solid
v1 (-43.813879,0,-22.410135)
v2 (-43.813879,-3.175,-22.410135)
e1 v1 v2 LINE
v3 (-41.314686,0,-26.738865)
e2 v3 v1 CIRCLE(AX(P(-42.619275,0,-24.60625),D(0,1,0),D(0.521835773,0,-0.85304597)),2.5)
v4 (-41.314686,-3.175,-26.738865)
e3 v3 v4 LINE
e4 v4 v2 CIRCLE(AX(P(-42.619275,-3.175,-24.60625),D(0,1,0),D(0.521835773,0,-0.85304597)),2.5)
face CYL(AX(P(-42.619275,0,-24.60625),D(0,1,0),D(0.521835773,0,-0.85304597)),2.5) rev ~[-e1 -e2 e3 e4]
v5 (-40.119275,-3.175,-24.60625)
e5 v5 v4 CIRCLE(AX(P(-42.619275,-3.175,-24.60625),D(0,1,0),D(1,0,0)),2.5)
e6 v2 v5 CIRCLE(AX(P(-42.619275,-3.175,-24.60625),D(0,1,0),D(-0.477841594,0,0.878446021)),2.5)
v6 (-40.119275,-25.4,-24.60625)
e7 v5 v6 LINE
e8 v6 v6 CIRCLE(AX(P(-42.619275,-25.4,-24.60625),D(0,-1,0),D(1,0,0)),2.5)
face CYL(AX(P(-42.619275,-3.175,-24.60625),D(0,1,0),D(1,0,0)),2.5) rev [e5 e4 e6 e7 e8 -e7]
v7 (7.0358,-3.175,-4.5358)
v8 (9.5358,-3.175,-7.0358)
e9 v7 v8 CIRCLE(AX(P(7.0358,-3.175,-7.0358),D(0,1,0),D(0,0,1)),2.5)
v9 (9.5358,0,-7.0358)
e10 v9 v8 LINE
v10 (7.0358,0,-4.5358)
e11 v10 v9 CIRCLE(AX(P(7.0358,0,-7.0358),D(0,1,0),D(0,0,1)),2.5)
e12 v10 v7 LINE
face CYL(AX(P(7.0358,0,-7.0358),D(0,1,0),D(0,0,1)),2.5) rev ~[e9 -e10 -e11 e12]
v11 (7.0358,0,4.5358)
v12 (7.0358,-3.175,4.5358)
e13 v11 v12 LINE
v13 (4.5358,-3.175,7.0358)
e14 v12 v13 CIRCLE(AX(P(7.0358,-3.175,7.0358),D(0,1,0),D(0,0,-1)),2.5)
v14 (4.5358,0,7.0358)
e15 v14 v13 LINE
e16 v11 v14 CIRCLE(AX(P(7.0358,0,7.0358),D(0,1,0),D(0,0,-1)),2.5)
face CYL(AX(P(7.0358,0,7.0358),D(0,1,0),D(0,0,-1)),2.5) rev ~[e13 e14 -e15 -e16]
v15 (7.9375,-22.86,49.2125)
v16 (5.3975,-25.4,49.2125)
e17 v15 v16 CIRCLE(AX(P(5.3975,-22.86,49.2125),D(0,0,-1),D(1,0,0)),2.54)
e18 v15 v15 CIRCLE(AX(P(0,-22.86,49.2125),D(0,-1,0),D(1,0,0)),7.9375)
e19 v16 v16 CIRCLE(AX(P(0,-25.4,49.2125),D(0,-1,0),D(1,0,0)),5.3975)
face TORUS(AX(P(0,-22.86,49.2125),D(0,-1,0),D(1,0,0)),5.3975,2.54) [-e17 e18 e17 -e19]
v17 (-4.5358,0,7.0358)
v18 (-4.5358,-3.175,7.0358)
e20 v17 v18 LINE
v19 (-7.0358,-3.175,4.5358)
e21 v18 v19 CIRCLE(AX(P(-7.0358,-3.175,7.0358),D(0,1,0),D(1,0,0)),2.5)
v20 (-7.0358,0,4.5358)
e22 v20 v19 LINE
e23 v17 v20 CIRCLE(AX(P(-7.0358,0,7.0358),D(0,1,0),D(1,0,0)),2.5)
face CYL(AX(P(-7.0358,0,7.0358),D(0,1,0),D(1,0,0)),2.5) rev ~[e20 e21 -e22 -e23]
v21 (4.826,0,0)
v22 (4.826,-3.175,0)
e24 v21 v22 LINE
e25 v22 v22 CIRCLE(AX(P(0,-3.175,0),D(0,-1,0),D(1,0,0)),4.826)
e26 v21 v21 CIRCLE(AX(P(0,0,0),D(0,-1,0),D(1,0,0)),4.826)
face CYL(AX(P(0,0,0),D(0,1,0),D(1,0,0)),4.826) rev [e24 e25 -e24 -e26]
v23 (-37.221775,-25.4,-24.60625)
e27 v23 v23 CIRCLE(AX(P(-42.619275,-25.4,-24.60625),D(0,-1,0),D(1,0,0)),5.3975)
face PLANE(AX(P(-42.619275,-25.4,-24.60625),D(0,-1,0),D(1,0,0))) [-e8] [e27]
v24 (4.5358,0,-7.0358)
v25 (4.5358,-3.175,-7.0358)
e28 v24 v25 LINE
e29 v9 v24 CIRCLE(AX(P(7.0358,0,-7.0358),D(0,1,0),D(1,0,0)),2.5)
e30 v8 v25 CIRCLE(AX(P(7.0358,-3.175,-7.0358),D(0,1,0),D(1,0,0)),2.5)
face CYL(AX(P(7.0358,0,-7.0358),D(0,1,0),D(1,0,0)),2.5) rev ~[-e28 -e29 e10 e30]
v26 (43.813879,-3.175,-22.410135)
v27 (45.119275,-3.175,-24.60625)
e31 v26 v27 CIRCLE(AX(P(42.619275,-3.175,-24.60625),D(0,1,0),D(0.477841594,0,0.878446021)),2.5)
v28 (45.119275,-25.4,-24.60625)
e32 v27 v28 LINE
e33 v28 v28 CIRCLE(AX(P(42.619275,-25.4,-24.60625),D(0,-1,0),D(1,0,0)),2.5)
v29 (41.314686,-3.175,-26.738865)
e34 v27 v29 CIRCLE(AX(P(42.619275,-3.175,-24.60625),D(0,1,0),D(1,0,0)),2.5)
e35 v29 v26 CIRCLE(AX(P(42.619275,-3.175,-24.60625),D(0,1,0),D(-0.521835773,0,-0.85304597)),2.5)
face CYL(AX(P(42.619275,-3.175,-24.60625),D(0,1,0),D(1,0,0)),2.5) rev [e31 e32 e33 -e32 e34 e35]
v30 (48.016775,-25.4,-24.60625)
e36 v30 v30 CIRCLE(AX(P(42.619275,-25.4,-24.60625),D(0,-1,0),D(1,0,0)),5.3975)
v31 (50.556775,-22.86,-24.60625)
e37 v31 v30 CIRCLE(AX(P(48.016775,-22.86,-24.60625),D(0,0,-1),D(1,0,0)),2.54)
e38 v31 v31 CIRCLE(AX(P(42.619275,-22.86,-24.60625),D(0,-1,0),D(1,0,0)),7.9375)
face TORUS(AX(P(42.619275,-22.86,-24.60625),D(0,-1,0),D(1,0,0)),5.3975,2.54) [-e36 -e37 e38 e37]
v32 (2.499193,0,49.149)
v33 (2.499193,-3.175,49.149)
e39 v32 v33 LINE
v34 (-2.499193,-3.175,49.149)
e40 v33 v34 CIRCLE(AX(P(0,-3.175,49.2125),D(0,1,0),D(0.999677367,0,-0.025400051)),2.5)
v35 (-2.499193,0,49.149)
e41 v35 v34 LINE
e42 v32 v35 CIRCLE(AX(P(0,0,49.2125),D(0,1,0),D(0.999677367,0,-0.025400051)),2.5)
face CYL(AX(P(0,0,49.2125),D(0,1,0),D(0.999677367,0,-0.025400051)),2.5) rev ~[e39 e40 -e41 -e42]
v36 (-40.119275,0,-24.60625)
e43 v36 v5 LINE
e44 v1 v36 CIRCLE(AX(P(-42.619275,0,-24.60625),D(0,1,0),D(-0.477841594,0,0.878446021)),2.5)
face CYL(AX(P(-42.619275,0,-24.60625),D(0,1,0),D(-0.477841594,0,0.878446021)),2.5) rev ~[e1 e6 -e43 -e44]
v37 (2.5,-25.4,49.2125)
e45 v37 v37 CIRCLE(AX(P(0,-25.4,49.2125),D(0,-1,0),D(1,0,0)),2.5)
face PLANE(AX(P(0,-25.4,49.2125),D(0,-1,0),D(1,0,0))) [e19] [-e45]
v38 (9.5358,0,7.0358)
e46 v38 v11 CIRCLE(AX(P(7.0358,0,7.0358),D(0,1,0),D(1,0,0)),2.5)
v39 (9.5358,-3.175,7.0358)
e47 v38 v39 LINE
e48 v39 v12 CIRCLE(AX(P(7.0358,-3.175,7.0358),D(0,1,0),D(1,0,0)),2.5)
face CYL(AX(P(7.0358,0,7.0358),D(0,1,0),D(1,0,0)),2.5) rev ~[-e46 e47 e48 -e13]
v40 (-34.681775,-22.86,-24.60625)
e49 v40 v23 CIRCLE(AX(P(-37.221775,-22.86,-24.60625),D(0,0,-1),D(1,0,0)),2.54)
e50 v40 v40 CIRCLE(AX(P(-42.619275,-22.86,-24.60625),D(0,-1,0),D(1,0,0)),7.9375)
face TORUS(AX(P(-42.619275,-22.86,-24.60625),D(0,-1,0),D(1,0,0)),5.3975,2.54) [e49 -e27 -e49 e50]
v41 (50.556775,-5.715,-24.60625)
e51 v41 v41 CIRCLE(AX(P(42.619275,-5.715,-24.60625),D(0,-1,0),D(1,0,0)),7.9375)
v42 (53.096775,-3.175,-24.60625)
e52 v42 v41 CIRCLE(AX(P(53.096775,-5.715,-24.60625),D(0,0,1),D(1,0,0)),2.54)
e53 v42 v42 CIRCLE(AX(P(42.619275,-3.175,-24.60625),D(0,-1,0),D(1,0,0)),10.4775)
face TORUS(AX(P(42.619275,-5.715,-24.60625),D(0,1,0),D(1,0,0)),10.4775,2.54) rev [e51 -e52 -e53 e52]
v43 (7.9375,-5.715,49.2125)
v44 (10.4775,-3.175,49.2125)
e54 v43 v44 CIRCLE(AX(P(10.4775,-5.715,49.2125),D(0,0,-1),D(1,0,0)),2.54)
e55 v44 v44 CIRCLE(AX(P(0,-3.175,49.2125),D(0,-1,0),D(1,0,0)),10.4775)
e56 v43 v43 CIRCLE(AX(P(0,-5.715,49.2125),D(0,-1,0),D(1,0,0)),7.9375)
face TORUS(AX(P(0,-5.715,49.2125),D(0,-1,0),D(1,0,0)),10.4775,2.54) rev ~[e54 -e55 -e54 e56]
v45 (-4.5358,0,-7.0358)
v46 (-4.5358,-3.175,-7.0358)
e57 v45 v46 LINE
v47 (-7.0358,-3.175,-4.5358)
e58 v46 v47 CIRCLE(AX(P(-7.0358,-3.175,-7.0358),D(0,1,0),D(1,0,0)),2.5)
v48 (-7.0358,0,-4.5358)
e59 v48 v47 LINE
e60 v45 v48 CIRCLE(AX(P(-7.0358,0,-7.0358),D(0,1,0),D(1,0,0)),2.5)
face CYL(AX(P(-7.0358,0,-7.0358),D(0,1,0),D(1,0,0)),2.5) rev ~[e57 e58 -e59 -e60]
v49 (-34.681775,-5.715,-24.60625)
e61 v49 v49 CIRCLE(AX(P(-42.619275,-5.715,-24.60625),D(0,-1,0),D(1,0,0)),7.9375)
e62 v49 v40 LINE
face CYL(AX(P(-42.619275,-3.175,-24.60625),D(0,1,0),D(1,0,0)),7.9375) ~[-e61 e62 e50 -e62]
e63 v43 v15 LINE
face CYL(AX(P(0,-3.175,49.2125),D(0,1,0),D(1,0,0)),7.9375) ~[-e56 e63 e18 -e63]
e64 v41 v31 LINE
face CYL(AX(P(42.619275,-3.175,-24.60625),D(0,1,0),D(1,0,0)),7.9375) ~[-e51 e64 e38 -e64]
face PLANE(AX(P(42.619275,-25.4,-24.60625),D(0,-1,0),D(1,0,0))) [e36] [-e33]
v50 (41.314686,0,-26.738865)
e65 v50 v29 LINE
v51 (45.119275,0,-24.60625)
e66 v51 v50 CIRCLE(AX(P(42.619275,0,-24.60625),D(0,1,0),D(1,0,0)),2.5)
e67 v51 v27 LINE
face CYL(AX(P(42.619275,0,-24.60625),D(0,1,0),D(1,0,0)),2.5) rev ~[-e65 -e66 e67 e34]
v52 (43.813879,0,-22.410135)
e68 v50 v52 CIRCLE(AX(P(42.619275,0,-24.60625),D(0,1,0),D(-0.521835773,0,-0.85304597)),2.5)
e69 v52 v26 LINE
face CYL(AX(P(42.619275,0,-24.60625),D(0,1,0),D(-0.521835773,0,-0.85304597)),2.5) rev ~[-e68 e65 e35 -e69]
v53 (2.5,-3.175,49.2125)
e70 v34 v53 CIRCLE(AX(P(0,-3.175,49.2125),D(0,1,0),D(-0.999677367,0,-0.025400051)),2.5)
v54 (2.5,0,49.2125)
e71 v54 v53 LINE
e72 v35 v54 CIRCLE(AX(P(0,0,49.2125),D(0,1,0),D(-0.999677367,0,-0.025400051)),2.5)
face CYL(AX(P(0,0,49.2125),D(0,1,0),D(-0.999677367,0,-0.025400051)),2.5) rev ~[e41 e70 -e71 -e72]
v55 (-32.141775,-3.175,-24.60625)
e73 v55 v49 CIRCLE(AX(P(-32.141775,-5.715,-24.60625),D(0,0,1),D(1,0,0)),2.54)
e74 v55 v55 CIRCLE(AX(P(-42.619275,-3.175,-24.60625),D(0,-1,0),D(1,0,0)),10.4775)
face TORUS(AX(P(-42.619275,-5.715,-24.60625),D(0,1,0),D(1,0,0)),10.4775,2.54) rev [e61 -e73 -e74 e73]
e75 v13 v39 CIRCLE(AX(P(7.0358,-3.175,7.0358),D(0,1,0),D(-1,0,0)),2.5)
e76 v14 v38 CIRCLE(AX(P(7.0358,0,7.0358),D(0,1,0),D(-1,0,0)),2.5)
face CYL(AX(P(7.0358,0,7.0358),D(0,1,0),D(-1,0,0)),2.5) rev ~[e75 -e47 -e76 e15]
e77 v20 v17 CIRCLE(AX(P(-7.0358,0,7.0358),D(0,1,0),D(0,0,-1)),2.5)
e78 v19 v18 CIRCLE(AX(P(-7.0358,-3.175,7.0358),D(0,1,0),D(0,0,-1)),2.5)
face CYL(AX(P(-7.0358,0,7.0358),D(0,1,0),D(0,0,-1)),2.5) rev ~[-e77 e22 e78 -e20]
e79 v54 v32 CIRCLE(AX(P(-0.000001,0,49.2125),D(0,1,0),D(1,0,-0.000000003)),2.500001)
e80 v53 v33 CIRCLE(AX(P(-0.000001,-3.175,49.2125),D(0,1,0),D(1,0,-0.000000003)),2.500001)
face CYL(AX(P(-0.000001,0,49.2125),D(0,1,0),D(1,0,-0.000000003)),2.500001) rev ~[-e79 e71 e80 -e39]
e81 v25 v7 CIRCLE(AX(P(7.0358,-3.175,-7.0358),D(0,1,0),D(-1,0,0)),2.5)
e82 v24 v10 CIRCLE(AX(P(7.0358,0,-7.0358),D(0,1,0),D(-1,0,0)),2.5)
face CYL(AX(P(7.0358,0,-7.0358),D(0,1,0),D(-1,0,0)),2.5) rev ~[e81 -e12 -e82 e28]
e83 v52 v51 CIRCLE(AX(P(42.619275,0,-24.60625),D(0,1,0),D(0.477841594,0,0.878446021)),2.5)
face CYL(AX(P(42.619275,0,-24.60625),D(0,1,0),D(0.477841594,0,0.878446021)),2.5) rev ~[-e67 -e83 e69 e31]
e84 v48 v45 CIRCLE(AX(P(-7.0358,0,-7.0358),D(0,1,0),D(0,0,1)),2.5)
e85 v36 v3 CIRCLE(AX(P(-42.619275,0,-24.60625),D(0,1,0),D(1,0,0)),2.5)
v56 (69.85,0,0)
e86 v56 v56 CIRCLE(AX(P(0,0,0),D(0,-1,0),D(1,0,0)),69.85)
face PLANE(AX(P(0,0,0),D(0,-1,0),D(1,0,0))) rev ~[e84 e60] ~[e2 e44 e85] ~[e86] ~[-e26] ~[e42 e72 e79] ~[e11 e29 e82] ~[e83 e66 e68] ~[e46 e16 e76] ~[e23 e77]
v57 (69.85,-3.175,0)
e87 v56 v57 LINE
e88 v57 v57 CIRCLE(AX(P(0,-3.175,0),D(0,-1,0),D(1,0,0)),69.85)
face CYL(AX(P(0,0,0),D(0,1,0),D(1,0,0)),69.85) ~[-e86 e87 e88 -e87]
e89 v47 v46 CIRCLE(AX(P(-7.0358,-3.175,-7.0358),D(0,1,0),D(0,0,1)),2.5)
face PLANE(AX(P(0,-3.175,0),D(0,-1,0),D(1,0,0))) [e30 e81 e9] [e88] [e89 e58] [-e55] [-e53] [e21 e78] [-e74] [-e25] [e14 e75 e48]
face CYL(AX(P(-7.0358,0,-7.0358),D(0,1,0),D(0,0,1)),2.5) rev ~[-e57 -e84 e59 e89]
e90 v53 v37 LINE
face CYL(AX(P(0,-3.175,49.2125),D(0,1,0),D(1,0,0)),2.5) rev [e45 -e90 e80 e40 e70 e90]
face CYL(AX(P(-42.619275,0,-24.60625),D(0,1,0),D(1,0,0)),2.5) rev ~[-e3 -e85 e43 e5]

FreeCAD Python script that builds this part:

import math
import FreeCAD as App
import Part
import Sketcher
Q = App.Units.Quantity


def edges_at(feature, points):
    """Names of the edges that pass closest to the given points."""
    edges = feature.Shape.Edges
    near = lambda p: min(range(len(edges)), key=lambda i: edges[i].distToShape(Part.Vertex(*p))[0])
    return sorted({f"Edge{near(p) + 1}" for p in points})

doc = App.newDocument("Part")
body = doc.addObject("PartDesign::Body", "Body")

sketch1 = body.newObject("Sketcher::SketchObject", "Sketch")
sketch1.AttachmentSupport = (doc.getObject("XZ_Plane"), [""])
sketch1.MapMode = "FlatFace"
sketch1.addGeometry([
    Part.Circle(App.Vector(0, 0, 0), App.Vector(0, 0, 1), 69.85),
    Part.ArcOfCircle(Part.Circle(App.Vector(-42.62, -24.61, 0), App.Vector(0, 0, 1), 2.5), math.radians(119), math.radians(301)),
    Part.ArcOfCircle(Part.Circle(App.Vector(-42.62, -24.61, 0), App.Vector(0, 0, 1), 2.5), math.radians(0), math.radians(119)),
    Part.ArcOfCircle(Part.Circle(App.Vector(-42.62, -24.61, 0), App.Vector(0, 0, 1), 2.5), math.radians(-59), math.radians(0)),
    Part.ArcOfCircle(Part.Circle(App.Vector(-7.04, -7.04, 0), App.Vector(0, 0, 1), 2.5), math.radians(90), math.radians(360)),
    Part.ArcOfCircle(Part.Circle(App.Vector(-7.04, -7.04, 0), App.Vector(0, 0, 1), 2.5), math.radians(0), math.radians(90)),
    Part.ArcOfCircle(Part.Circle(App.Vector(-7.04, 7.04, 0), App.Vector(0, 0, 1), 2.5), math.radians(0), math.radians(270)),
    Part.ArcOfCircle(Part.Circle(App.Vector(-7.04, 7.04, 0), App.Vector(0, 0, 1), 2.5), math.radians(-90), math.radians(0)),
    Part.ArcOfCircle(Part.Circle(App.Vector(42.62, -24.61, 0), App.Vector(0, 0, 1), 2.5), math.radians(-121), math.radians(0)),
    Part.ArcOfCircle(Part.Circle(App.Vector(42.62, -24.61, 0), App.Vector(0, 0, 1), 2.5), math.radians(61), math.radians(239)),
    Part.ArcOfCircle(Part.Circle(App.Vector(42.62, -24.61, 0), App.Vector(0, 0, 1), 2.5), math.radians(0), math.radians(61)),
    Part.ArcOfCircle(Part.Circle(App.Vector(7.04, -7.04, 0), App.Vector(0, 0, 1), 2.5), math.radians(180), math.radians(360)),
    Part.ArcOfCircle(Part.Circle(App.Vector(7.04, -7.04, 0), App.Vector(0, 0, 1), 2.5), math.radians(90), math.radians(180)),
    Part.ArcOfCircle(Part.Circle(App.Vector(7.04, -7.04, 0), App.Vector(0, 0, 1), 2.5), math.radians(0), math.radians(90)),
    Part.Circle(App.Vector(0, 0, 0), App.Vector(0, 0, 1), 4.83),
    Part.ArcOfCircle(Part.Circle(App.Vector(7.04, 7.04, 0), App.Vector(0, 0, 1), 2.5), math.radians(-90), math.radians(0)),
    Part.ArcOfCircle(Part.Circle(App.Vector(7.04, 7.04, 0), App.Vector(0, 0, 1), 2.5), math.radians(180), math.radians(270)),
    Part.ArcOfCircle(Part.Circle(App.Vector(7.04, 7.04, 0), App.Vector(0, 0, 1), 2.5), math.radians(0), math.radians(180)),
    Part.ArcOfCircle(Part.Circle(App.Vector(0, 49.21, 0), App.Vector(0, 0, 1), 2.5), math.radians(-1.46), math.radians(0)),
    Part.ArcOfCircle(Part.Circle(App.Vector(0, 49.21, 0), App.Vector(0, 0, 1), 2.5), math.radians(-179), math.radians(-1)),
    Part.ArcOfCircle(Part.Circle(App.Vector(0, 49.21, 0), App.Vector(0, 0, 1), 2.5), math.radians(0), math.radians(181)),
], False)
sketch1.addConstraint([
    Sketcher.Constraint("Tangent", 1, 1, 2, 2),
    Sketcher.Constraint("Tangent", 2, 1, 3, 2),
    Sketcher.Constraint("Tangent", 3, 1, 1, 2),
    Sketcher.Constraint("Tangent", 4, 1, 5, 2),
    Sketcher.Constraint("Coincident", 5, 1, 4, 2),
    Sketcher.Constraint("Tangent", 6, 1, 7, 2),
    Sketcher.Constraint("Coincident", 7, 1, 6, 2),
    Sketcher.Constraint("Tangent", 8, 1, 9, 2),
    Sketcher.Constraint("Tangent", 9, 1, 10, 2),
    Sketcher.Constraint("Tangent", 10, 1, 8, 2),
    Sketcher.Constraint("Tangent", 11, 1, 12, 2),
    Sketcher.Constraint("Tangent", 12, 1, 13, 2),
    Sketcher.Constraint("Tangent", 13, 1, 11, 2),
    Sketcher.Constraint("Tangent", 15, 1, 16, 2),
    Sketcher.Constraint("Tangent", 16, 1, 17, 2),
    Sketcher.Constraint("Tangent", 17, 1, 15, 2),
    Sketcher.Constraint("Tangent", 18, 1, 19, 2),
    Sketcher.Constraint("Tangent", 19, 1, 20, 2),
    Sketcher.Constraint("Tangent", 20, 1, 18, 2),
    Sketcher.Constraint("Coincident", 0, 3, -1, 1),
    Sketcher.Constraint("Coincident", 14, 3, -1, 1),
    Sketcher.Constraint("Equal", 3, 4),
    Sketcher.Constraint("Equal", 5, 6),
    Sketcher.Constraint("Equal", 7, 8),
    Sketcher.Constraint("Equal", 10, 11),
    Sketcher.Constraint("Equal", 13, 15),
    Sketcher.Constraint("Equal", 17, 18),
    Sketcher.Constraint("Symmetric", 6, 3, 11, 3, -1, 1),
    Sketcher.Constraint("Symmetric", 4, 3, 15, 3, -1, 1),
    Sketcher.Constraint("Symmetric", 1, 3, 8, 3, -2),
    Sketcher.Constraint("Symmetric", 4, 3, 11, 3, -2),
    Sketcher.Constraint("Symmetric", 18, 1, 19, 1, -2),
    Sketcher.Constraint("Horizontal", 10, 3, 2, 1),
    Sketcher.Constraint("Horizontal", 13, 3, 5, 1),
    Sketcher.Constraint("Horizontal", 17, 3, 6, 1),
    Sketcher.Constraint("Horizontal", 3, 1, 8, 1),
    Sketcher.Constraint("Horizontal", 1, 1, 9, 1),
    Sketcher.Constraint("Horizontal", 2, 1, 10, 1),
    Sketcher.Constraint("Horizontal", 5, 1, 11, 1),
    Sketcher.Constraint("Horizontal", 11, 1, 13, 1),
    Sketcher.Constraint("Horizontal", 6, 1, 16, 1),
    Sketcher.Constraint("Horizontal", 16, 1, 17, 1),
    Sketcher.Constraint("Horizontal", 19, 3, 20, 1),
    Sketcher.Constraint("Vertical", 7, 3, 4, 1),
    Sketcher.Constraint("Vertical", 4, 1, 7, 1),
    Sketcher.Constraint("Vertical", 17, 3, 12, 1),
    Sketcher.Constraint("Vertical", 12, 1, 15, 1),
    Sketcher.Constraint("Diameter", 0, Q("5.5 in")),
    Sketcher.Constraint("Diameter", 14, Q("0.38 in")),
    Sketcher.Constraint("Radius", 1, 2.5),
    Sketcher.Constraint("DistanceY", 1, 3, -1, 1, Q("0.96875 in")),
    Sketcher.Constraint("DistanceX", 4, 3, -1, 1, Q("0.277 in")),
    Sketcher.Constraint("DistanceY", 4, 3, -1, 1, Q("0.277 in")),
    Sketcher.Constraint("DistanceY", -1, 1, 18, 3, Q("1.9375 in")),
    Sketcher.Constraint("DistanceY", -1, 1, 18, 1, Q("1.935 in")),
    Sketcher.Constraint("DistanceX", 1, 1, -1, 1, 43.813879),
    Sketcher.Constraint("DistanceX", 3, 1, 2, 1, 1.195411),
    Sketcher.Constraint("DistanceY", 3, 1, 1, 1, 4.32873),
])
pad1 = body.newObject("PartDesign::Pad", "Pad")
pad1.Profile = sketch1
pad1.Length = Q("0.125 in")

sketch2 = body.newObject("Sketcher::SketchObject", "Sketch001")
sketch2.AttachmentSupport = (doc.getObject("XZ_Plane"), [""])
sketch2.MapMode = "FlatFace"
sketch2.AttachmentOffset = App.Placement(App.Vector(0, 0, 0.125 * 25.4), App.Rotation())
sketch2.addGeometry([
    Part.Circle(App.Vector(0, 49.2, 0), App.Vector(0, 0, 1), 7.9),
    Part.Circle(App.Vector(0, 49.2, 0), App.Vector(0, 0, 1), 2.5),
    Part.Circle(App.Vector(-42.6, -24.6, 0), App.Vector(0, 0, 1), 7.9),
    Part.Circle(App.Vector(-42.6, -24.6, 0), App.Vector(0, 0, 1), 2.5),
    Part.Circle(App.Vector(42.6, -24.6, 0), App.Vector(0, 0, 1), 7.9),
    Part.Circle(App.Vector(42.6, -24.6, 0), App.Vector(0, 0, 1), 2.5),
], False)
sketch2.addConstraint([
    Sketcher.Constraint("Coincident", 1, 3, 0, 3),
    Sketcher.Constraint("Coincident", 3, 3, 2, 3),
    Sketcher.Constraint("Coincident", 5, 3, 4, 3),
    Sketcher.Constraint("Equal", 0, 2),
    Sketcher.Constraint("Equal", 1, 3),
    Sketcher.Constraint("Equal", 2, 4),
    Sketcher.Constraint("Equal", 3, 5),
    Sketcher.Constraint("Symmetric", 2, 3, 4, 3, -2),
    Sketcher.Constraint("PointOnObject", 0, 3, -2),
    Sketcher.Constraint("Diameter", 0, Q("0.625 in")),
    Sketcher.Constraint("Diameter", 1, 5.0),
    Sketcher.Constraint("DistanceY", -1, 1, 0, 3, Q("1.9375 in")),
    Sketcher.Constraint("DistanceY", 2, 3, -1, 1, Q("0.96875 in")),
    Sketcher.Constraint("DistanceX", 2, 3, 4, 3, 85.23855),
])
pad2 = body.newObject("PartDesign::Pad", "Pad001")
pad2.Profile = sketch2
pad2.Length = Q("0.875 in")
doc.recompute()

fillet = body.newObject("PartDesign::Fillet", "Fillet")
fillet.Base = (pad2, edges_at(pad2, [
    (-7.938, -3.175, 49.212),
    (34.682, -3.175, -24.606),
    (-50.557, -3.175, -24.606),
    (-7.938, -25.4, 49.212),
    (34.682, -25.4, -24.606),
    (-50.557, -25.4, -24.606),
]))
fillet.Radius = Q("0.1 in")

doc.recompute()
